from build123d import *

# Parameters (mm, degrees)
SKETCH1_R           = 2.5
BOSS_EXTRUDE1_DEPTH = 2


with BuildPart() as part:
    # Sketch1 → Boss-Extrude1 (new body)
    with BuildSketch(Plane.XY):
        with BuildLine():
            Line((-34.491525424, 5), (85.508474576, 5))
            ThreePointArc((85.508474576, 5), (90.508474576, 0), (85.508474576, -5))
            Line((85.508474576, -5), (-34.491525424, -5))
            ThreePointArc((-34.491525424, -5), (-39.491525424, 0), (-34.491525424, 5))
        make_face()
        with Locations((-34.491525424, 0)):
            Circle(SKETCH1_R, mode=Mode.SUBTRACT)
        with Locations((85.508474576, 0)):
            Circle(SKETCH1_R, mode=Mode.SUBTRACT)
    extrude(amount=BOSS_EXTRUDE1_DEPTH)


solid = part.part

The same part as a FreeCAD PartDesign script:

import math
import FreeCAD as App
import Part
import Sketcher

V = App.Vector

doc = App.newDocument("Part")
body = doc.addObject("PartDesign::Body", "Body")

sketch1 = body.newObject("Sketcher::SketchObject", "Sketch")
sketch1.AttachmentSupport = (doc.getObject("XY_Plane"), [""])
sketch1.MapMode = "FlatFace"
sketch1.addGeometry([
    Part.LineSegment(V(85.5, 5, 0), V(-34.5, 5, 0)),
    Part.ArcOfCircle(Part.Circle(V(-34.5, 0, 0), V(0, 0, 1), 5), math.radians(90), math.radians(270)),
    Part.LineSegment(V(-34.5, -5, 0), V(85.5, -5, 0)),
    Part.ArcOfCircle(Part.Circle(V(85.5, 0, 0), V(0, 0, 1), 5), math.radians(-90), math.radians(90)),
    Part.Circle(V(85.5, 0, 0), V(0, 0, 1), 2.5),
    Part.Circle(V(-34.5, 0, 0), V(0, 0, 1), 2.5),
], False)
sketch1.addConstraint([
    Sketcher.Constraint("Tangent", 0, 2, 1, 1),
    Sketcher.Constraint("Tangent", 1, 2, 2, 1),
    Sketcher.Constraint("Tangent", 2, 2, 3, 1),
    Sketcher.Constraint("Tangent", 3, 2, 0, 1),
    Sketcher.Constraint("Horizontal", 0),
    Sketcher.Constraint("Horizontal", 2),
    Sketcher.Constraint("Coincident", 4, 3, 3, 3),
    Sketcher.Constraint("Coincident", 5, 3, 1, 3),
    Sketcher.Constraint("Equal", 4, 5),
    Sketcher.Constraint("PointOnObject", 1, 3, -1),
    Sketcher.Constraint("Diameter", 4, 5.0),
    Sketcher.Constraint("Radius", 1, 5.0),
    Sketcher.Constraint("DistanceX", 0, 2, 0, 1, 120.0),
    Sketcher.Constraint("DistanceX", 1, 3, -1, 1, 34.491525),
])
pad1 = body.newObject("PartDesign::Pad", "Pad")
pad1.Profile = sketch1
pad1.Length = 2

doc.recompute()
